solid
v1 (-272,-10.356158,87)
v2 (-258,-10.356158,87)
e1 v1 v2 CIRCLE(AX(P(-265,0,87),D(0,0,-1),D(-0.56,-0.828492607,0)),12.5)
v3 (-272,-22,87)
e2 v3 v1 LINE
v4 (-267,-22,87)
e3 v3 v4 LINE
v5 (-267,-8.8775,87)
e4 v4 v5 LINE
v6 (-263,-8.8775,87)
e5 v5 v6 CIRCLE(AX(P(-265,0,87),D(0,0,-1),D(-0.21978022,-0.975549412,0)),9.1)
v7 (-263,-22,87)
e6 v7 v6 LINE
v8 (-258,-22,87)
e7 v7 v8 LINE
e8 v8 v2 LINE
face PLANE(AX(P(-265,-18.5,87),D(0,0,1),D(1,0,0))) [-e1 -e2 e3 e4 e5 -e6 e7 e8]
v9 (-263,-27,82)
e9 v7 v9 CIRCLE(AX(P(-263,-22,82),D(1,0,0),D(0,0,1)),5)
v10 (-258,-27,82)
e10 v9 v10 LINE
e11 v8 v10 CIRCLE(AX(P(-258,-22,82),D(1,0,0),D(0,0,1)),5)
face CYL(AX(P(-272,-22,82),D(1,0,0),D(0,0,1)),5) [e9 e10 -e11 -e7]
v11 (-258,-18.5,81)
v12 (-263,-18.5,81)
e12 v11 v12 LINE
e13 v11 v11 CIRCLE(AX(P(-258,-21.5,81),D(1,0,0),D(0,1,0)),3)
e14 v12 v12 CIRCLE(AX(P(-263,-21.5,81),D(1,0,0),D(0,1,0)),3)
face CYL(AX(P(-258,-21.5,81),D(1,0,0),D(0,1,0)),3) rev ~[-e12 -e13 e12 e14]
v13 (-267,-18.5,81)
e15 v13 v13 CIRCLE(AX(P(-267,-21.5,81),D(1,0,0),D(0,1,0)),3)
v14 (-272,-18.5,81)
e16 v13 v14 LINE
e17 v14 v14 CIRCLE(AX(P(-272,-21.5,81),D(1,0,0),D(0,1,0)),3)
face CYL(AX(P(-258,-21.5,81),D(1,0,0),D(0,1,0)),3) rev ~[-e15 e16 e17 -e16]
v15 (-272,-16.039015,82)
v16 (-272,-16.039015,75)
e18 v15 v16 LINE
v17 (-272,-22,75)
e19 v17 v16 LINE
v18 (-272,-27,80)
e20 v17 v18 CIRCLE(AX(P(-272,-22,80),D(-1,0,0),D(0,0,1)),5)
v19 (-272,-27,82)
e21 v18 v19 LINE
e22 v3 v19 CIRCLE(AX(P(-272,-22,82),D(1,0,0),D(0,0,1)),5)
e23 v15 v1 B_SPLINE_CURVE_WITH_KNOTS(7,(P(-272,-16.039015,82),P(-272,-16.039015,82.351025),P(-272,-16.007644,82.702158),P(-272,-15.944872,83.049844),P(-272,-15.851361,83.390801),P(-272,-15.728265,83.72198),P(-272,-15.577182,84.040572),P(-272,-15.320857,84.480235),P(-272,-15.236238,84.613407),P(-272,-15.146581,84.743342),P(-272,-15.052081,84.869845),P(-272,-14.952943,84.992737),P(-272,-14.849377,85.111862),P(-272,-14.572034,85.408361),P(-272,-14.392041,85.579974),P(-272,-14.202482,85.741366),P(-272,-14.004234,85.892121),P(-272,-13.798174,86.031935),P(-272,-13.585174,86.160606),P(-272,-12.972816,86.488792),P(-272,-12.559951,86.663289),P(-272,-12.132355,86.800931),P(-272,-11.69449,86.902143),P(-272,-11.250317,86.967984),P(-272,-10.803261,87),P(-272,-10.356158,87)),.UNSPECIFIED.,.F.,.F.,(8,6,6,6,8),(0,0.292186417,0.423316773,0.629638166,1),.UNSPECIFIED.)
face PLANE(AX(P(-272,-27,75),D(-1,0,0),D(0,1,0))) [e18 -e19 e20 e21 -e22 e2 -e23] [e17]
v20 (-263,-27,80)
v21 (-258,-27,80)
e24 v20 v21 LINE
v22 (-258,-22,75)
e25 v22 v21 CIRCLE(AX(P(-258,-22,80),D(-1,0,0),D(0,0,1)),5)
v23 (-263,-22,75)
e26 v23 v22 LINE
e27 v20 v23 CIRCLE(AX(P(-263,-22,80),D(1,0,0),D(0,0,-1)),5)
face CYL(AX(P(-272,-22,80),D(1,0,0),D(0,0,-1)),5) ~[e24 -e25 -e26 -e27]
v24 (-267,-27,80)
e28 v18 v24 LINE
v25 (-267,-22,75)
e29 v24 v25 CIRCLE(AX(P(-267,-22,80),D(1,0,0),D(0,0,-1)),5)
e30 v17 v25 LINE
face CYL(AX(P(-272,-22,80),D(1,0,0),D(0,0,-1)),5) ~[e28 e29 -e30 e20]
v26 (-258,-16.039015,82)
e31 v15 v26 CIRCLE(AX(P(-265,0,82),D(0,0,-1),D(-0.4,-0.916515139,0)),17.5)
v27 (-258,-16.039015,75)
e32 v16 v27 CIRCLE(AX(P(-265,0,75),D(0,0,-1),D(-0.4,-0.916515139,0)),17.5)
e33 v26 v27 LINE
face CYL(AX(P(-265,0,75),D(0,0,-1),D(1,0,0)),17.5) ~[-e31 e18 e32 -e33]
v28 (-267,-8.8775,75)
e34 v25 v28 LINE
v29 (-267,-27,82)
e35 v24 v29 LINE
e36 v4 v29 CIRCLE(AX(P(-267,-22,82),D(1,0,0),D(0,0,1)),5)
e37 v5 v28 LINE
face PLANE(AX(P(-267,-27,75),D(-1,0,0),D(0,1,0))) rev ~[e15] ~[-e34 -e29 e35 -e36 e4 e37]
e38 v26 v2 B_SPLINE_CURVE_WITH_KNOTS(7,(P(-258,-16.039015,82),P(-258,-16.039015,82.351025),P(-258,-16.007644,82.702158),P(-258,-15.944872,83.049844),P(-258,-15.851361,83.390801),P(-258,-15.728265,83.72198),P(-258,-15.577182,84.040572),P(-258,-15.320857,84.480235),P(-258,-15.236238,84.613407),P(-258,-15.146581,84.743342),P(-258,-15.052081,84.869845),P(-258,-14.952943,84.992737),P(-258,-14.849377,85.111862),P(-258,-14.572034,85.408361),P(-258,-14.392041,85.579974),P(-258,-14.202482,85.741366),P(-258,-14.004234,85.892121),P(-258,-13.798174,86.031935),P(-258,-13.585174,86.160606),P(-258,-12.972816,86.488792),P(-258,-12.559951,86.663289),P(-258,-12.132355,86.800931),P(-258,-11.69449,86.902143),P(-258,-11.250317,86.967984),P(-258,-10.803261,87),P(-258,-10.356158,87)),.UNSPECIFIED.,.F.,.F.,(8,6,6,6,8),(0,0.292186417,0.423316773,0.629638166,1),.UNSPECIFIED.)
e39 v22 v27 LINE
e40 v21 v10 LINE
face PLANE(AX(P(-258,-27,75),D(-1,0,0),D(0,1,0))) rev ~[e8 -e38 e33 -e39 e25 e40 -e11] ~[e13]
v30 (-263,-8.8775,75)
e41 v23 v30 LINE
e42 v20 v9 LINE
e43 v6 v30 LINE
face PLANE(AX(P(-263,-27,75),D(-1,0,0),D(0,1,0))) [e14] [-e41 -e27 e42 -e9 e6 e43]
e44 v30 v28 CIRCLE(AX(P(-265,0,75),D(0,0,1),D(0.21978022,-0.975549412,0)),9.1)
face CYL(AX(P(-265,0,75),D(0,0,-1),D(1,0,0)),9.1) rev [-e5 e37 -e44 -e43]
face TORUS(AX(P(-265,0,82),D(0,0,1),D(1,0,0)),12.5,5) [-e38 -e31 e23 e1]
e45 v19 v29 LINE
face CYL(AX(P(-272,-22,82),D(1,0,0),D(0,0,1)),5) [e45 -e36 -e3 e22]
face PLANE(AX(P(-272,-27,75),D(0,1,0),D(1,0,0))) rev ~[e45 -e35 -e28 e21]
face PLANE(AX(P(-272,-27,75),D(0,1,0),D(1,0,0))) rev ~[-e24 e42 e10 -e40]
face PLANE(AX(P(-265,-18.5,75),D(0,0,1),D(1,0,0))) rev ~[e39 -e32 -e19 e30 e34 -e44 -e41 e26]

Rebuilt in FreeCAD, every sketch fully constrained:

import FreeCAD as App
import Part
import Sketcher

V = App.Vector
Q = App.Units.Quantity


def edges_at(feature, points):
    """Names of the edges that pass closest to the given points."""
    edges = feature.Shape.Edges
    near = lambda p: min(range(len(edges)), key=lambda i: edges[i].distToShape(Part.Vertex(*p))[0])
    return sorted({f"Edge{near(p) + 1}" for p in points})

doc = App.newDocument("Part")
body = doc.addObject("PartDesign::Body", "Body")

# Sketch on XY plane
sketch1 = body.newObject("Sketcher::SketchObject", "Sketch")
sketch1.AttachmentSupport = (doc.getObject("XY_Plane"), [""])
sketch1.MapMode = "FlatFace"
sketch1.addGeometry(Part.Circle(V(0, 0, 0), V(0, 0, 1), 18), False)
sketch1.addConstraint(Sketcher.Constraint("Coincident", 0, 3, -1, 1))
sketch1.addConstraint(Sketcher.Constraint("Diameter", 0, Q("35 mm")))
pad1 = body.newObject("PartDesign::Pad", "Pad")
pad1.Profile = sketch1
pad1.Length = 12
doc.recompute()

fillet = body.newObject("PartDesign::Fillet", "Fillet")
fillet.Base = (pad1, edges_at(pad1, [(-17.5, 0, 12)]))
fillet.Radius = 5

# Sketch on XY plane
sketch2 = body.newObject("Sketcher::SketchObject", "Sketch001")
sketch2.AttachmentSupport = (doc.getObject("XY_Plane"), [""])
sketch2.MapMode = "FlatFace"
sketch2.addGeometry(Part.LineSegment(V(-7, -10, 0), V(-7, -27, 0)), False)
sketch2.addGeometry(Part.LineSegment(V(-7, -27, 0), V(7, -27, 0)), False)
sketch2.addGeometry(Part.LineSegment(V(7, -27, 0), V(7, -10, 0)), False)
sketch2.addGeometry(Part.LineSegment(V(7, -10, 0), V(-7, -10, 0)), False)
sketch2.addConstraint(Sketcher.Constraint("Coincident", 0, 2, 1, 1))
sketch2.addConstraint(Sketcher.Constraint("Coincident", 1, 2, 2, 1))
sketch2.addConstraint(Sketcher.Constraint("Coincident", 2, 2, 3, 1))
sketch2.addConstraint(Sketcher.Constraint("Coincident", 3, 2, 0, 1))
sketch2.addConstraint(Sketcher.Constraint("Vertical", 0))
sketch2.addConstraint(Sketcher.Constraint("Horizontal", 1))
sketch2.addConstraint(Sketcher.Constraint("Vertical", 2))
sketch2.addConstraint(Sketcher.Constraint("Horizontal", 3))
sketch2.addConstraint(Sketcher.Constraint("DistanceX", 1, 1, 1, 2, Q("14 mm")))
sketch2.addConstraint(Sketcher.Constraint("DistanceY", 0, 2, 0, 1, Q("17 mm")))
sketch2.addConstraint(Sketcher.Constraint("DistanceX", 0, 2, -1, 1, Q("7 mm")))
sketch2.addConstraint(Sketcher.Constraint("DistanceY", 0, 2, -1, 1, Q("27 mm")))
pad2 = body.newObject("PartDesign::Pad", "Pad001")
pad2.Profile = sketch2
pad2.Length = 12

# Sketch on XY plane
sketch3 = body.newObject("Sketcher::SketchObject", "Sketch002")
sketch3.AttachmentSupport = (doc.getObject("XY_Plane"), [""])
sketch3.MapMode = "FlatFace"
sketch3.addGeometry(Part.Circle(V(0, 0, 0), V(0, 0, 1), 9), False)
sketch3.addConstraint(Sketcher.Constraint("Coincident", 0, 3, -1, 1))
sketch3.addConstraint(Sketcher.Constraint("Diameter", 0, Q("18.2 mm")))
pocket1 = body.newObject("PartDesign::Pocket", "Pocket")
pocket1.Profile = sketch3
pocket1.Length = 12
pocket1.Reversed = True
doc.recompute()

fillet2 = body.newObject("PartDesign::Fillet", "Fillet001")
fillet2.Base = (pocket1, edges_at(pocket1, [(0, -27, 12), (0, -27, 0)]))
fillet2.Radius = 5

# Sketch on XY plane
sketch4 = body.newObject("Sketcher::SketchObject", "Sketch003")
sketch4.AttachmentSupport = (doc.getObject("XY_Plane"), [""])
sketch4.MapMode = "FlatFace"
sketch4.addGeometry(Part.LineSegment(V(-2, -8, 0), V(-2, -27, 0)), False)
sketch4.addGeometry(Part.LineSegment(V(-2, -27, 0), V(2, -27, 0)), False)
sketch4.addGeometry(Part.LineSegment(V(2, -27, 0), V(2, -8, 0)), False)
sketch4.addGeometry(Part.LineSegment(V(2, -8, 0), V(-2, -8, 0)), False)
sketch4.addConstraint(Sketcher.Constraint("Coincident", 0, 2, 1, 1))
sketch4.addConstraint(Sketcher.Constraint("Coincident", 1, 2, 2, 1))
sketch4.addConstraint(Sketcher.Constraint("Coincident", 2, 2, 3, 1))
sketch4.addConstraint(Sketcher.Constraint("Coincident", 3, 2, 0, 1))
sketch4.addConstraint(Sketcher.Constraint("Vertical", 0))
sketch4.addConstraint(Sketcher.Constraint("Horizontal", 1))
sketch4.addConstraint(Sketcher.Constraint("Vertical", 2))
sketch4.addConstraint(Sketcher.Constraint("Horizontal", 3))
sketch4.addConstraint(Sketcher.Constraint("DistanceX", 1, 1, 1, 2, Q("4 mm")))
sketch4.addConstraint(Sketcher.Constraint("DistanceY", 0, 2, 0, 1, Q("19 mm")))
sketch4.addConstraint(Sketcher.Constraint("DistanceX", 0, 2, -1, 1, Q("2 mm")))
sketch4.addConstraint(Sketcher.Constraint("DistanceY", 0, 2, -1, 1, Q("27 mm")))
pocket2 = body.newObject("PartDesign::Pocket", "Pocket001")
pocket2.Profile = sketch4
pocket2.Length = 12
pocket2.Reversed = True

# Sketch on YZ plane
sketch5 = body.newObject("Sketcher::SketchObject", "Sketch004")
sketch5.AttachmentSupport = (doc.getObject("YZ_Plane"), [""])
sketch5.MapMode = "FlatFace"
sketch5.AttachmentOffset = App.Placement(V(0, 0, 7), App.Rotation())
sketch5.addGeometry(Part.Circle(V(-21.5, 6, 0), V(0, 0, 1), 3), False)
sketch5.addConstraint(Sketcher.Constraint("Diameter", 0, Q("6 mm")))
sketch5.addConstraint(Sketcher.Constraint("DistanceY", -1, 1, 0, 3, Q("6 mm")))
sketch5.addConstraint(Sketcher.Constraint("DistanceX", 0, 3, -1, 1, Q("21.5 mm")))
pocket3 = body.newObject("PartDesign::Pocket", "Pocket002")
pocket3.Profile = sketch5
pocket3.Length = 25
body2 = doc.addObject("PartDesign::Body", "Body001")
doc.recompute()

body.Placement = App.Placement(V(-265, 0, 75), App.Rotation(V(0, 0, 1), 0))
boolean = body2.newObject("PartDesign::Boolean", "Boolean")
boolean.Type = "Fuse"
boolean.addObjects([body])

doc.recompute()
